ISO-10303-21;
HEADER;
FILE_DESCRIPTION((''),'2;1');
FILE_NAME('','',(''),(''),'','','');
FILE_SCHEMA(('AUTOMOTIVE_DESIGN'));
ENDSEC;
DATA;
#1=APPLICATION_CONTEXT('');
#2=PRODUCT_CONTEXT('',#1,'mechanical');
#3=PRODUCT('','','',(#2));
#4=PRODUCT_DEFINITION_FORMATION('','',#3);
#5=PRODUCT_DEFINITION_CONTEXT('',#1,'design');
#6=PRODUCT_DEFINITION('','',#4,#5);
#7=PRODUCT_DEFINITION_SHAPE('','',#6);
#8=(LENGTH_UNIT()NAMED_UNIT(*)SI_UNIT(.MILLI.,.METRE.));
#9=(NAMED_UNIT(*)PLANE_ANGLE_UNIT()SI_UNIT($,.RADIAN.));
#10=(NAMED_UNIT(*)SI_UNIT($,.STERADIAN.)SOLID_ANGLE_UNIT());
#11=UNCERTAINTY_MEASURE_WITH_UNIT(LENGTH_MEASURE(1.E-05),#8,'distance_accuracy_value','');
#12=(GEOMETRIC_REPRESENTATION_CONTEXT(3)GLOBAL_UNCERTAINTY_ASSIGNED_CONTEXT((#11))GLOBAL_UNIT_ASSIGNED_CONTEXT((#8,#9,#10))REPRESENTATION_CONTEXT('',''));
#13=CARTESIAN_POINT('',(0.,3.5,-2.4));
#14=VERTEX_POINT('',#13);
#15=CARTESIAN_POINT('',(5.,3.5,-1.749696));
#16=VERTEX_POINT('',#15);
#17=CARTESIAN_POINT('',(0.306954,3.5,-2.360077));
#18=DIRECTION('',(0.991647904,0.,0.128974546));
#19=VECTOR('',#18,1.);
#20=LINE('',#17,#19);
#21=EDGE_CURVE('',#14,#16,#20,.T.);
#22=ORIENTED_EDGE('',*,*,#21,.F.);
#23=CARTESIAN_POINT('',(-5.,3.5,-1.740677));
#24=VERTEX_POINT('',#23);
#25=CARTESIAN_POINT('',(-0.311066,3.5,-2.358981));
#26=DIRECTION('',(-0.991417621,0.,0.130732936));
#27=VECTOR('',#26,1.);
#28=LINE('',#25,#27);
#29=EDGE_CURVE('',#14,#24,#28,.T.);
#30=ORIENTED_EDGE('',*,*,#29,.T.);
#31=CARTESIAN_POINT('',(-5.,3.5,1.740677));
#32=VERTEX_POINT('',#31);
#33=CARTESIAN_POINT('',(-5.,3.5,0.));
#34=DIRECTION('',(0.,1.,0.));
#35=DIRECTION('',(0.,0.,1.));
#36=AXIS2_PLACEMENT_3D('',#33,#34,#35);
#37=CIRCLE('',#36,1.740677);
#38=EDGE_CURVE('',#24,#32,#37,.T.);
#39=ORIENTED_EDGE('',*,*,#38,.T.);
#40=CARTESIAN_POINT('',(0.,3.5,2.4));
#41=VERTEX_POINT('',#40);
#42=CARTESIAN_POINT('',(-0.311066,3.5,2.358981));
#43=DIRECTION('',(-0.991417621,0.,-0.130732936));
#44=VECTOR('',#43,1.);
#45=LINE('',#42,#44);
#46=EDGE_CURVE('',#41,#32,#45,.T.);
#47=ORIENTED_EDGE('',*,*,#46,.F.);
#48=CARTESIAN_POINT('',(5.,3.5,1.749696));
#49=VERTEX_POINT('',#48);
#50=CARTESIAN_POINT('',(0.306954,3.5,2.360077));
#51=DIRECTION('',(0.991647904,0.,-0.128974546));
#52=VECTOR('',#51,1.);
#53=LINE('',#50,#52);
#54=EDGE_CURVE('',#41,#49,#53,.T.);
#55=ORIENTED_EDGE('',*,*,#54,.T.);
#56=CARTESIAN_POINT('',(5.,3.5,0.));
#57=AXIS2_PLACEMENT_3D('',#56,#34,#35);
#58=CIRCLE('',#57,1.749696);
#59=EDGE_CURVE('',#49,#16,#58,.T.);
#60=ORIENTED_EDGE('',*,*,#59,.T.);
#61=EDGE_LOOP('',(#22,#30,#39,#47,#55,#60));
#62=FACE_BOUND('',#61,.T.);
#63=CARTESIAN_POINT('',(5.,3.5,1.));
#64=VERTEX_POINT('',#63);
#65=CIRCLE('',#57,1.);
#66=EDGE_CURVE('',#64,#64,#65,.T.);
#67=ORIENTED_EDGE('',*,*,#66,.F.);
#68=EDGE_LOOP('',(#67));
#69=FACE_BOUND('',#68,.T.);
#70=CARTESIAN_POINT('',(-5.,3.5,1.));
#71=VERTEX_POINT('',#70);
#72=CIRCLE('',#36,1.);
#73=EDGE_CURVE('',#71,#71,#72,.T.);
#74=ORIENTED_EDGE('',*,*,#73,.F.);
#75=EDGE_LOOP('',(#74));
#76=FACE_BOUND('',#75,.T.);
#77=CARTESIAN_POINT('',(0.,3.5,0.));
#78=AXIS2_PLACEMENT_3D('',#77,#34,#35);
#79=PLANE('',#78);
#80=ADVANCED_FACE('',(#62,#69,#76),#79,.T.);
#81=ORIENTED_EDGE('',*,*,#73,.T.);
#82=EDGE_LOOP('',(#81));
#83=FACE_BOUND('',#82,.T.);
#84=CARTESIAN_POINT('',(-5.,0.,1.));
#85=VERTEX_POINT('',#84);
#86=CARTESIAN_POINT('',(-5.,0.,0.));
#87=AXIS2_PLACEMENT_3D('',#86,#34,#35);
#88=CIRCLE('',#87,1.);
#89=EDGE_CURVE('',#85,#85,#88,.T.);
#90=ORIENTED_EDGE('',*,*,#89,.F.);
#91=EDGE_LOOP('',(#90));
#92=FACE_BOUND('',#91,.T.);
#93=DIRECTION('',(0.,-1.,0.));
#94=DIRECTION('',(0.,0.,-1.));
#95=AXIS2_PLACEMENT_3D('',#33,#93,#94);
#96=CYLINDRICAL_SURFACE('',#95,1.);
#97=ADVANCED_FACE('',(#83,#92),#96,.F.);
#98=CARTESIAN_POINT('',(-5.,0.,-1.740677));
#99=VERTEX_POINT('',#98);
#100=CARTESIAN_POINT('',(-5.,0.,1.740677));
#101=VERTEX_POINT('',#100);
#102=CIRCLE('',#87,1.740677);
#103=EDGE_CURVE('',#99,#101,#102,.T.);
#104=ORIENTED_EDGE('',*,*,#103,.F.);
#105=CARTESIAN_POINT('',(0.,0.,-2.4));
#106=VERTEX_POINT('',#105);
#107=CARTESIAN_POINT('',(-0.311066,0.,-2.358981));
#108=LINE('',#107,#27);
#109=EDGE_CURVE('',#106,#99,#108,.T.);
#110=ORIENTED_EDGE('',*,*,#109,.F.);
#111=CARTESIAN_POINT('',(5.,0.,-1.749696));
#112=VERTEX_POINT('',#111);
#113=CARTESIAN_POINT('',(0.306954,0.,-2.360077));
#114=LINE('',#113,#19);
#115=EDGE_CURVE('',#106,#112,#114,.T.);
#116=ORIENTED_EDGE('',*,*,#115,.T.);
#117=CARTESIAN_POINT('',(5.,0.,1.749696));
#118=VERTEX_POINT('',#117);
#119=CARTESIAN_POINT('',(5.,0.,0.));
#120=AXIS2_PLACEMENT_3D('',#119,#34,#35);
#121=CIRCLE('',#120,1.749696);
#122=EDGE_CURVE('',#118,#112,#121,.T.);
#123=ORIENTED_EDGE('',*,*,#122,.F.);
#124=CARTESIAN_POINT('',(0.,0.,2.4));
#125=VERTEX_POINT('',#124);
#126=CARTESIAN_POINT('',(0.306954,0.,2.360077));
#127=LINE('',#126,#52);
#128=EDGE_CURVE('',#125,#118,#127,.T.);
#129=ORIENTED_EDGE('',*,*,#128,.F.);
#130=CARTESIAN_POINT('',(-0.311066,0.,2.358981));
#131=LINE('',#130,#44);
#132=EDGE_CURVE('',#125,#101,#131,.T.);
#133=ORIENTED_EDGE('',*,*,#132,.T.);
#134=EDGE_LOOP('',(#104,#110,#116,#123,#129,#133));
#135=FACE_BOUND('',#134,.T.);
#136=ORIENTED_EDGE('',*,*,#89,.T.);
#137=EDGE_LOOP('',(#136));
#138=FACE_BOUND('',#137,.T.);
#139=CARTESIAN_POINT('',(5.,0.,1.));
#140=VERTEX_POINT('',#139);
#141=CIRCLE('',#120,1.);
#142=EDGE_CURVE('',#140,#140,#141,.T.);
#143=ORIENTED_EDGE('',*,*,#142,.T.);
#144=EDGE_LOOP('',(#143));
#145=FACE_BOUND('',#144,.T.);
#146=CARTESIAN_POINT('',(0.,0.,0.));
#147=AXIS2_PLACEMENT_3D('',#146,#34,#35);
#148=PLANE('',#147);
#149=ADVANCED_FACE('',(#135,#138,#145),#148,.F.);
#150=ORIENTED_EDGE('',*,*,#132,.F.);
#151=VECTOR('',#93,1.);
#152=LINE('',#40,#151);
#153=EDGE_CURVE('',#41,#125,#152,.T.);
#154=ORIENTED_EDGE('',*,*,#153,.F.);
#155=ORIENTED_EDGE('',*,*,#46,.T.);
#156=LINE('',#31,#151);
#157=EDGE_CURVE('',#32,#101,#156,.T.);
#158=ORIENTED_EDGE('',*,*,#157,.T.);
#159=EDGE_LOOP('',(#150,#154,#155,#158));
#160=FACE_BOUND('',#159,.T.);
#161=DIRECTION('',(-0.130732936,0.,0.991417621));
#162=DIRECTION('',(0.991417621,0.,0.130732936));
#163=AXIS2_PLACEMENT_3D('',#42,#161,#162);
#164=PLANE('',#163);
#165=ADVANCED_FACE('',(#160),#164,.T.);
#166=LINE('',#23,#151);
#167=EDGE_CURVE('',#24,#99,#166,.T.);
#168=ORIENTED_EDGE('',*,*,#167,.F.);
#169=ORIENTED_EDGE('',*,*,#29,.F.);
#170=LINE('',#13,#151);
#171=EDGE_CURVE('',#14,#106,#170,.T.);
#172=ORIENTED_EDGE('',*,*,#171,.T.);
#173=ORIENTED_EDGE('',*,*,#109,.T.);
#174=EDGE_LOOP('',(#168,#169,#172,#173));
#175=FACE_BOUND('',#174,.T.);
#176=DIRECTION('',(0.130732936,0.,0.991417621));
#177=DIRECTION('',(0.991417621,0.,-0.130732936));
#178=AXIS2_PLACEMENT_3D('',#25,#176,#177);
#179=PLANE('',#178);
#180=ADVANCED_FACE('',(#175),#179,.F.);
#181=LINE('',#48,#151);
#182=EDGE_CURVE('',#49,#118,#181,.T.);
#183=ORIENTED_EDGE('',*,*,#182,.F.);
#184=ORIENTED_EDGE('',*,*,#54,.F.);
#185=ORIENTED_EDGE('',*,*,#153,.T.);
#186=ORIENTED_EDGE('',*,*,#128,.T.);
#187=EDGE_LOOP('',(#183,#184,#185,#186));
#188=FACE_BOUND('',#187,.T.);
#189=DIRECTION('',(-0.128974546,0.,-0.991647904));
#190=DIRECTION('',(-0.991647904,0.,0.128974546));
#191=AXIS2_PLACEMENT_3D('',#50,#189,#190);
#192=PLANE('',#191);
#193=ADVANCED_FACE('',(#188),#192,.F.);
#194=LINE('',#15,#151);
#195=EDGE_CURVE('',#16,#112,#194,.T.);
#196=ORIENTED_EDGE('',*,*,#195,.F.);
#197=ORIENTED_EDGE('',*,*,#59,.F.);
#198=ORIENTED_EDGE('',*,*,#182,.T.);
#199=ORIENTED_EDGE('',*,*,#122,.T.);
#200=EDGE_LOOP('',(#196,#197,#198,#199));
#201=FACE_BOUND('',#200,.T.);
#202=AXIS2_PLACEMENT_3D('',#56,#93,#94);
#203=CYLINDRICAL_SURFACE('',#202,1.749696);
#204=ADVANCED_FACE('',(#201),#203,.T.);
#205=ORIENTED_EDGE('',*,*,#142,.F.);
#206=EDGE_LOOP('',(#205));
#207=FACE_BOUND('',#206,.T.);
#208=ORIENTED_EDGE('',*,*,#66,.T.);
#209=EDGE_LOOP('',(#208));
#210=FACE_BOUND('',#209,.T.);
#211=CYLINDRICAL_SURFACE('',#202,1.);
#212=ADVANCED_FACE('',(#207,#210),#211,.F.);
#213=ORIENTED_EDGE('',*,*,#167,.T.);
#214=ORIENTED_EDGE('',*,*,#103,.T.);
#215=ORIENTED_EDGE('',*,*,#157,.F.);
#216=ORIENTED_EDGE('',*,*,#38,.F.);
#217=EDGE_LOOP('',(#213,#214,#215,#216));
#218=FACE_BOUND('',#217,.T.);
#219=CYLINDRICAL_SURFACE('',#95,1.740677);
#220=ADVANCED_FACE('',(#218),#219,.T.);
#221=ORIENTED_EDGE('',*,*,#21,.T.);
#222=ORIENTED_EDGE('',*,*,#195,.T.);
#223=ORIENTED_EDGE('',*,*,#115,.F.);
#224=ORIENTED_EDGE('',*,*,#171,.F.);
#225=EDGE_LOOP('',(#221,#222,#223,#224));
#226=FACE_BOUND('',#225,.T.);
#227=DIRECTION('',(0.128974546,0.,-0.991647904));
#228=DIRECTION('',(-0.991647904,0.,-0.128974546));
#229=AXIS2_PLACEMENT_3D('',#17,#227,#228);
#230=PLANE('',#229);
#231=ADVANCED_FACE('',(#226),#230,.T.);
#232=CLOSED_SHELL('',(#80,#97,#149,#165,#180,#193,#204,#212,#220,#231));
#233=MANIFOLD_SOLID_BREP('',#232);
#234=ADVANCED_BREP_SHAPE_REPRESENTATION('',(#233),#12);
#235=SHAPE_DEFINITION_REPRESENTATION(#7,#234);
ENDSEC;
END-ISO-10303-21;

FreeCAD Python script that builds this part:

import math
import FreeCAD as App
import Part
import Sketcher

doc = App.newDocument("Part")
body = doc.addObject("PartDesign::Body", "Body")

sketch1 = body.newObject("Sketcher::SketchObject", "Sketch")
sketch1.AttachmentSupport = (doc.getObject("XZ_Plane"), [""])
sketch1.MapMode = "FlatFace"
sketch1.addGeometry([
    Part.LineSegment(App.Vector(0, 2.4, 0), App.Vector(5, 1.7, 0)),
    Part.ArcOfCircle(Part.Circle(App.Vector(5, 0, 0), App.Vector(0, 0, 1), 1.7), math.radians(-90), math.radians(90)),
    Part.LineSegment(App.Vector(5, -1.7, 0), App.Vector(0, -2.4, 0)),
    Part.LineSegment(App.Vector(0, -2.4, 0), App.Vector(-5, -1.7, 0)),
    Part.ArcOfCircle(Part.Circle(App.Vector(-5, 0, 0), App.Vector(0, 0, 1), 1.7), math.radians(90), math.radians(270)),
    Part.LineSegment(App.Vector(-5, 1.7, 0), App.Vector(0, 2.4, 0)),
    Part.Circle(App.Vector(-5, 0, 0), App.Vector(0, 0, 1), 1),
    Part.Circle(App.Vector(5, 0, 0), App.Vector(0, 0, 1), 1),
], False)
sketch1.addConstraint([
    Sketcher.Constraint("Coincident", 0, 2, 1, 2),
    Sketcher.Constraint("Coincident", 1, 1, 2, 1),
    Sketcher.Constraint("Coincident", 2, 2, 3, 1),
    Sketcher.Constraint("Coincident", 3, 2, 4, 2),
    Sketcher.Constraint("Coincident", 4, 1, 5, 1),
    Sketcher.Constraint("Coincident", 5, 2, 0, 1),
    Sketcher.Constraint("Coincident", 6, 3, 4, 3),
    Sketcher.Constraint("Coincident", 7, 3, 1, 3),
    Sketcher.Constraint("Equal", 6, 7),
    Sketcher.Constraint("Symmetric", 1, 3, 4, 3, -1, 1),
    Sketcher.Constraint("Symmetric", 2, 2, 5, 2, -1, 1),
    Sketcher.Constraint("Symmetric", 0, 2, 1, 1, -1),
    Sketcher.Constraint("PointOnObject", 2, 2, -2),
    Sketcher.Constraint("Vertical", 7, 3, 0, 2),
    Sketcher.Constraint("Vertical", 6, 3, 3, 2),
    Sketcher.Constraint("Vertical", 3, 2, 4, 1),
    Sketcher.Constraint("Diameter", 6, 2.0),
    Sketcher.Constraint("DistanceX", -1, 1, 1, 3, 5.0),
    Sketcher.Constraint("DistanceY", 2, 2, -1, 1, 2.4),
    Sketcher.Constraint("Radius", 1, 1.749696),
    Sketcher.Constraint("Radius", 4, 1.740677),
])
pad1 = body.newObject("PartDesign::Pad", "Pad")
pad1.Profile = sketch1
pad1.Length = 3.5
pad1.Reversed = True

doc.recompute()
